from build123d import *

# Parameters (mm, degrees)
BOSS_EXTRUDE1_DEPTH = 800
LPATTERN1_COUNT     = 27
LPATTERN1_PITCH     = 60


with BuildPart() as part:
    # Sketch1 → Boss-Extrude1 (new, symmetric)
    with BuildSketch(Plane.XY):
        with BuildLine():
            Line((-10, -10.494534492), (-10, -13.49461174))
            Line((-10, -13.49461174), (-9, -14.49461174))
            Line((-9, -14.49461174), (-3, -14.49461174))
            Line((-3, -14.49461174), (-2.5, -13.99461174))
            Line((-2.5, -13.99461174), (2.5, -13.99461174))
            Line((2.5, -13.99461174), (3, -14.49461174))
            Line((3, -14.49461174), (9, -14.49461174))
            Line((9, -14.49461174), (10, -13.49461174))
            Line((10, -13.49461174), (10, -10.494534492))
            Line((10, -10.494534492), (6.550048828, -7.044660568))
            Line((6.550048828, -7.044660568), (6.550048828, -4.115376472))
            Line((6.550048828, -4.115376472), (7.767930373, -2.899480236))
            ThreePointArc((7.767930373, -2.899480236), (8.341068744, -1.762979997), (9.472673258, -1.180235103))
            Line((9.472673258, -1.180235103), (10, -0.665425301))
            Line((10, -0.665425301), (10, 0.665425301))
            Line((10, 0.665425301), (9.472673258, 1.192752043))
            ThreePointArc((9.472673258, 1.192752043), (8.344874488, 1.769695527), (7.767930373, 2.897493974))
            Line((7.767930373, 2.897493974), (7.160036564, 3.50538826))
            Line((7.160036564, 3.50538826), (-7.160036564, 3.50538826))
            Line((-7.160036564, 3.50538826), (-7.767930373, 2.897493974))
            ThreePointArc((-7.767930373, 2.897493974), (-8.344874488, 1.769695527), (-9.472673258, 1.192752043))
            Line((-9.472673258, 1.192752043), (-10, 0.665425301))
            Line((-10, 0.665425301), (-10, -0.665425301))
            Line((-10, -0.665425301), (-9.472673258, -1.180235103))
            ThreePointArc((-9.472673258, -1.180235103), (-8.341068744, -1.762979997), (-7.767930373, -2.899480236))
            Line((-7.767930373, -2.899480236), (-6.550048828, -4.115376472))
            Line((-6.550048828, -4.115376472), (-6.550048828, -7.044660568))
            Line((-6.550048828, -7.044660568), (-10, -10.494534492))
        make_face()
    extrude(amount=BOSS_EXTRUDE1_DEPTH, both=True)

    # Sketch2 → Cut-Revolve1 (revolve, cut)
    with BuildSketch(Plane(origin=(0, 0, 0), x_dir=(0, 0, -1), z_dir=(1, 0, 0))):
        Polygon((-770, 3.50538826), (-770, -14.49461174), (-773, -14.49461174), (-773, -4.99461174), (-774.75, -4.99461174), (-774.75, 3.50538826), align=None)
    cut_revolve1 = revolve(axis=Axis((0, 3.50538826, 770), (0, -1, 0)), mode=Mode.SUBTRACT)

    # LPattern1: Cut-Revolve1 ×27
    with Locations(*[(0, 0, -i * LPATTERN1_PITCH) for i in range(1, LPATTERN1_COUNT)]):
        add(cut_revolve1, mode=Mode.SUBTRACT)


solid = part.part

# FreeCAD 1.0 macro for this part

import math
import FreeCAD as App
import Part
import Sketcher
from FreeCAD import Vector

doc = App.newDocument("Part")
body = doc.addObject("PartDesign::Body", "Body")

# Sketch on XY plane
sketch1 = doc.addObject("Sketcher::SketchObject", "Sketch")
body.addObject(sketch1)
sketch1.AttachmentSupport = (doc.XY_Plane, [""])
sketch1.MapMode = "FlatFace"
sketch1.addGeometry(Part.LineSegment(Vector(-10, -10.5, 0), Vector(-10, -13.5, 0)), False)
sketch1.addGeometry(Part.LineSegment(Vector(-10, -13.5, 0), Vector(-9, -14.5, 0)), False)
sketch1.addGeometry(Part.LineSegment(Vector(-9, -14.5, 0), Vector(-3, -14.5, 0)), False)
sketch1.addGeometry(Part.LineSegment(Vector(-3, -14.5, 0), Vector(-2.5, -14, 0)), False)
sketch1.addGeometry(Part.LineSegment(Vector(-2.5, -14, 0), Vector(2.5, -14, 0)), False)
sketch1.addGeometry(Part.LineSegment(Vector(2.5, -14, 0), Vector(3, -14.5, 0)), False)
sketch1.addGeometry(Part.LineSegment(Vector(3, -14.5, 0), Vector(9, -14.5, 0)), False)
sketch1.addGeometry(Part.LineSegment(Vector(9, -14.5, 0), Vector(10, -13.5, 0)), False)
sketch1.addGeometry(Part.LineSegment(Vector(10, -13.5, 0), Vector(10, -10.5, 0)), False)
sketch1.addGeometry(Part.LineSegment(Vector(10, -10.5, 0), Vector(6.6, -7, 0)), False)
sketch1.addGeometry(Part.LineSegment(Vector(6.6, -7, 0), Vector(6.6, -4.1, 0)), False)
sketch1.addGeometry(Part.LineSegment(Vector(6.6, -4.1, 0), Vector(7.8, -2.9, 0)), False)
sketch1.addGeometry(Part.ArcOfCircle(Part.Circle(Vector(9.8, -3.2, 0), Vector(0, 0, 1), 2.1), math.radians(99), math.radians(171)), False)
sketch1.addGeometry(Part.LineSegment(Vector(9.5, -1.2, 0), Vector(10, -0.7, 0)), False)
sketch1.addGeometry(Part.LineSegment(Vector(10, -0.7, 0), Vector(10, 0.7, 0)), False)
sketch1.addGeometry(Part.LineSegment(Vector(10, 0.7, 0), Vector(9.5, 1.2, 0)), False)
sketch1.addGeometry(Part.ArcOfCircle(Part.Circle(Vector(9.8, 3.2, 0), Vector(0, 0, 1), 2.1), math.radians(-171), math.radians(-99)), False)
sketch1.addGeometry(Part.LineSegment(Vector(7.8, 2.9, 0), Vector(7.2, 3.5, 0)), False)
sketch1.addGeometry(Part.LineSegment(Vector(7.2, 3.5, 0), Vector(-7.2, 3.5, 0)), False)
sketch1.addGeometry(Part.LineSegment(Vector(-7.2, 3.5, 0), Vector(-7.8, 2.9, 0)), False)
sketch1.addGeometry(Part.ArcOfCircle(Part.Circle(Vector(-9.8, 3.2, 0), Vector(0, 0, 1), 2.1), math.radians(-81), math.radians(-9)), False)
sketch1.addGeometry(Part.LineSegment(Vector(-9.5, 1.2, 0), Vector(-10, 0.7, 0)), False)
sketch1.addGeometry(Part.LineSegment(Vector(-10, 0.7, 0), Vector(-10, -0.7, 0)), False)
sketch1.addGeometry(Part.LineSegment(Vector(-10, -0.7, 0), Vector(-9.5, -1.2, 0)), False)
sketch1.addGeometry(Part.ArcOfCircle(Part.Circle(Vector(-9.8, -3.2, 0), Vector(0, 0, 1), 2.1), math.radians(9), math.radians(81)), False)
sketch1.addGeometry(Part.LineSegment(Vector(-7.8, -2.9, 0), Vector(-6.6, -4.1, 0)), False)
sketch1.addGeometry(Part.LineSegment(Vector(-6.6, -4.1, 0), Vector(-6.6, -7, 0)), False)
sketch1.addGeometry(Part.LineSegment(Vector(-6.6, -7, 0), Vector(-10, -10.5, 0)), False)
sketch1.addConstraint(Sketcher.Constraint("Coincident", 0, 2, 1, 1))
sketch1.addConstraint(Sketcher.Constraint("Coincident", 1, 2, 2, 1))
sketch1.addConstraint(Sketcher.Constraint("Coincident", 2, 2, 3, 1))
sketch1.addConstraint(Sketcher.Constraint("Coincident", 3, 2, 4, 1))
sketch1.addConstraint(Sketcher.Constraint("Coincident", 4, 2, 5, 1))
sketch1.addConstraint(Sketcher.Constraint("Coincident", 5, 2, 6, 1))
sketch1.addConstraint(Sketcher.Constraint("Coincident", 6, 2, 7, 1))
sketch1.addConstraint(Sketcher.Constraint("Coincident", 7, 2, 8, 1))
sketch1.addConstraint(Sketcher.Constraint("Coincident", 8, 2, 9, 1))
sketch1.addConstraint(Sketcher.Constraint("Coincident", 9, 2, 10, 1))
sketch1.addConstraint(Sketcher.Constraint("Coincident", 10, 2, 11, 1))
sketch1.addConstraint(Sketcher.Constraint("Coincident", 11, 2, 12, 2))
sketch1.addConstraint(Sketcher.Constraint("Coincident", 12, 1, 13, 1))
sketch1.addConstraint(Sketcher.Constraint("Coincident", 13, 2, 14, 1))
sketch1.addConstraint(Sketcher.Constraint("Coincident", 14, 2, 15, 1))
sketch1.addConstraint(Sketcher.Constraint("Coincident", 15, 2, 16, 2))
sketch1.addConstraint(Sketcher.Constraint("Coincident", 16, 1, 17, 1))
sketch1.addConstraint(Sketcher.Constraint("Coincident", 17, 2, 18, 1))
sketch1.addConstraint(Sketcher.Constraint("Coincident", 18, 2, 19, 1))
sketch1.addConstraint(Sketcher.Constraint("Coincident", 19, 2, 20, 2))
sketch1.addConstraint(Sketcher.Constraint("Coincident", 20, 1, 21, 1))
sketch1.addConstraint(Sketcher.Constraint("Coincident", 21, 2, 22, 1))
sketch1.addConstraint(Sketcher.Constraint("Coincident", 22, 2, 23, 1))
sketch1.addConstraint(Sketcher.Constraint("Coincident", 23, 2, 24, 2))
sketch1.addConstraint(Sketcher.Constraint("Coincident", 24, 1, 25, 1))
sketch1.addConstraint(Sketcher.Constraint("Coincident", 25, 2, 26, 1))
sketch1.addConstraint(Sketcher.Constraint("Coincident", 26, 2, 27, 1))
sketch1.addConstraint(Sketcher.Constraint("Coincident", 27, 2, 0, 1))
sketch1.addConstraint(Sketcher.Constraint("Vertical", 0))
sketch1.addConstraint(Sketcher.Constraint("Horizontal", 2))
sketch1.addConstraint(Sketcher.Constraint("Horizontal", 4))
sketch1.addConstraint(Sketcher.Constraint("Horizontal", 6))
sketch1.addConstraint(Sketcher.Constraint("Vertical", 8))
sketch1.addConstraint(Sketcher.Constraint("Vertical", 10))
sketch1.addConstraint(Sketcher.Constraint("Vertical", 14))
sketch1.addConstraint(Sketcher.Constraint("Horizontal", 18))
sketch1.addConstraint(Sketcher.Constraint("Vertical", 22))
sketch1.addConstraint(Sketcher.Constraint("Vertical", 26))
sketch1.addConstraint(Sketcher.Constraint("Equal", 12, 16))
sketch1.addConstraint(Sketcher.Constraint("Equal", 16, 20))
sketch1.addConstraint(Sketcher.Constraint("Equal", 20, 24))
sketch1.addConstraint(Sketcher.Constraint("Symmetric", 13, 2, 21, 2, -1, 1))
sketch1.addConstraint(Sketcher.Constraint("Symmetric", 16, 3, 20, 3, -2))
sketch1.addConstraint(Sketcher.Constraint("Symmetric", 12, 3, 24, 3, -2))
sketch1.addConstraint(Sketcher.Constraint("Symmetric", 2, 2, 5, 2, -2))
sketch1.addConstraint(Sketcher.Constraint("Symmetric", 0, 2, 7, 2, -2))
sketch1.addConstraint(Sketcher.Constraint("Symmetric", 10, 2, 25, 2, -2))
sketch1.addConstraint(Sketcher.Constraint("Perpendicular", 1, 3))
sketch1.addConstraint(Sketcher.Constraint("Perpendicular", 3, 5))
sketch1.addConstraint(Sketcher.Constraint("Perpendicular", 5, 7))
sketch1.addConstraint(Sketcher.Constraint("Perpendicular", 7, 15))
sketch1.addConstraint(Sketcher.Constraint("Parallel", 15, 17))
sketch1.addConstraint(Sketcher.Constraint("Perpendicular", 17, 19))
sketch1.addConstraint(Sketcher.Constraint("Parallel", 19, 21))
sketch1.addConstraint(Sketcher.Constraint("Horizontal", 16, 1, 19, 2))
sketch1.addConstraint(Sketcher.Constraint("Horizontal", 15, 2, 20, 1))
sketch1.addConstraint(Sketcher.Constraint("Horizontal", 14, 2, 21, 2))
sketch1.addConstraint(Sketcher.Constraint("Horizontal", 13, 2, 22, 2))
sketch1.addConstraint(Sketcher.Constraint("Horizontal", 12, 1, 23, 2))
sketch1.addConstraint(Sketcher.Constraint("Horizontal", 11, 2, 24, 1))
sketch1.addConstraint(Sketcher.Constraint("Horizontal", 9, 2, 26, 2))
sketch1.addConstraint(Sketcher.Constraint("Horizontal", 8, 2, 27, 2))
sketch1.addConstraint(Sketcher.Constraint("Vertical", 8, 2, 13, 2))
sketch1.addConstraint(Sketcher.Constraint("Vertical", 12, 1, 15, 2))
sketch1.addConstraint(Sketcher.Constraint("Vertical", 11, 2, 16, 1))
sketch1.addConstraint(Sketcher.Constraint("DistanceX", 2, 1, 2, 2, 6.0))
sketch1.addConstraint(Sketcher.Constraint("DistanceX", 4, 1, 4, 2, 5.0))
sketch1.addConstraint(Sketcher.Constraint("Radius", 12, 2.059999))
sketch1.addConstraint(Sketcher.Constraint("DistanceX", 0, 2, -1, 1, 10.0))
sketch1.addConstraint(Sketcher.Constraint("DistanceX", 1, 2, -1, 1, 9.0))
sketch1.addConstraint(Sketcher.Constraint("DistanceY", 14, 1, 14, 2, 1.330851))
sketch1.addConstraint(Sketcher.Constraint("DistanceY", 12, 3, 12, 1, 2.033202))
sketch1.addConstraint(Sketcher.Constraint("DistanceY", 25, 2, 21, 2, 4.780802))
sketch1.addConstraint(Sketcher.Constraint("Distance", 11, 1.720941))
sketch1.addConstraint(Sketcher.Constraint("DistanceX", 18, 2, 18, 1, 14.320073))
sketch1.addConstraint(Sketcher.Constraint("DistanceY", 0, 2, 0, 1, 3.000077))
sketch1.addConstraint(Sketcher.Constraint("DistanceY", 10, 1, 10, 2, 2.929284))
sketch1.addConstraint(Sketcher.Constraint("DistanceY", 0, 2, -1, 1, 13.494612))
sketch1.addConstraint(Sketcher.Constraint("DistanceX", -1, 1, 9, 2, 6.550049))
sketch1.addConstraint(Sketcher.Constraint("DistanceX", -1, 1, 11, 2, 7.76793))
sketch1.addConstraint(Sketcher.Constraint("DistanceY", -1, 1, 17, 2, 3.505388))
sketch1.addConstraint(Sketcher.Constraint("DistanceX", 16, 3, 12, 3, 0.002351))
pad1 = doc.addObject("PartDesign::Pad", "Pad")
body.addObject(pad1)
pad1.Profile = sketch1
pad1.Length = 1600
pad1.Midplane = True

# Sketch on YZ plane
sketch2 = doc.addObject("Sketcher::SketchObject", "Sketch001")
body.addObject(sketch2)
sketch2.AttachmentSupport = (doc.YZ_Plane, [""])
sketch2.MapMode = "FlatFace"
sketch2.addGeometry(Part.LineSegment(Vector(-14.5, 770, 0), Vector(3.5, 770, 0)), False)
sketch2.addGeometry(Part.LineSegment(Vector(3.5, 770, 0), Vector(3.5, 774.8, 0)), False)
sketch2.addGeometry(Part.LineSegment(Vector(3.5, 774.8, 0), Vector(-5, 774.8, 0)), False)
sketch2.addGeometry(Part.LineSegment(Vector(-5, 774.8, 0), Vector(-5, 773, 0)), False)
sketch2.addGeometry(Part.LineSegment(Vector(-5, 773, 0), Vector(-14.5, 773, 0)), False)
sketch2.addGeometry(Part.LineSegment(Vector(-14.5, 773, 0), Vector(-14.5, 770, 0)), False)
sketch2.addGeometry(Part.LineSegment(Vector(3.5, 770, 0), Vector(-14.5, 770, 0)), True)  # axis
sketch2.addConstraint(Sketcher.Constraint("Coincident", 0, 2, 1, 1))
sketch2.addConstraint(Sketcher.Constraint("Coincident", 1, 2, 2, 1))
sketch2.addConstraint(Sketcher.Constraint("Coincident", 2, 2, 3, 1))
sketch2.addConstraint(Sketcher.Constraint("Coincident", 3, 2, 4, 1))
sketch2.addConstraint(Sketcher.Constraint("Coincident", 4, 2, 5, 1))
sketch2.addConstraint(Sketcher.Constraint("Coincident", 5, 2, 0, 1))
sketch2.addConstraint(Sketcher.Constraint("Horizontal", 0))
sketch2.addConstraint(Sketcher.Constraint("Vertical", 1))
sketch2.addConstraint(Sketcher.Constraint("Horizontal", 2))
sketch2.addConstraint(Sketcher.Constraint("Vertical", 3))
sketch2.addConstraint(Sketcher.Constraint("Horizontal", 4))
sketch2.addConstraint(Sketcher.Constraint("Vertical", 5))
sketch2.addConstraint(Sketcher.Constraint("Horizontal", 6))
sketch2.addConstraint(Sketcher.Constraint("Coincident", 6, 1, 0, 2))
sketch2.addConstraint(Sketcher.Constraint("Vertical", 4, 2, 6, 2))
sketch2.addConstraint(Sketcher.Constraint("DistanceX", 0, 1, 0, 2, 18.0))
sketch2.addConstraint(Sketcher.Constraint("DistanceY", 5, 2, 5, 1, 3.0))
sketch2.addConstraint(Sketcher.Constraint("DistanceX", 2, 2, 2, 1, 8.5))
sketch2.addConstraint(Sketcher.Constraint("DistanceY", -1, 1, 0, 2, 770.0))
sketch2.addConstraint(Sketcher.Constraint("DistanceY", 1, 1, 1, 2, 4.75))
sketch2.addConstraint(Sketcher.Constraint("DistanceX", -1, 1, 0, 2, 3.505388))
groove = doc.addObject("PartDesign::Groove", "Groove")
body.addObject(groove)
groove.Profile = sketch2
groove.ReferenceAxis = (sketch2, ["Axis0"])
groove.Angle = 360
doc.recompute()

linearpattern = doc.addObject("PartDesign::LinearPattern", "LinearPattern")
body.addObject(linearpattern)
linearpattern.Originals = [groove]
linearpattern.Direction = (doc.Z_Axis, [""])
linearpattern.Mode = "offset"
linearpattern.Offset = 60
linearpattern.Occurrences = 27
linearpattern.Reversed = True
body.Tip = linearpattern

doc.recompute()
